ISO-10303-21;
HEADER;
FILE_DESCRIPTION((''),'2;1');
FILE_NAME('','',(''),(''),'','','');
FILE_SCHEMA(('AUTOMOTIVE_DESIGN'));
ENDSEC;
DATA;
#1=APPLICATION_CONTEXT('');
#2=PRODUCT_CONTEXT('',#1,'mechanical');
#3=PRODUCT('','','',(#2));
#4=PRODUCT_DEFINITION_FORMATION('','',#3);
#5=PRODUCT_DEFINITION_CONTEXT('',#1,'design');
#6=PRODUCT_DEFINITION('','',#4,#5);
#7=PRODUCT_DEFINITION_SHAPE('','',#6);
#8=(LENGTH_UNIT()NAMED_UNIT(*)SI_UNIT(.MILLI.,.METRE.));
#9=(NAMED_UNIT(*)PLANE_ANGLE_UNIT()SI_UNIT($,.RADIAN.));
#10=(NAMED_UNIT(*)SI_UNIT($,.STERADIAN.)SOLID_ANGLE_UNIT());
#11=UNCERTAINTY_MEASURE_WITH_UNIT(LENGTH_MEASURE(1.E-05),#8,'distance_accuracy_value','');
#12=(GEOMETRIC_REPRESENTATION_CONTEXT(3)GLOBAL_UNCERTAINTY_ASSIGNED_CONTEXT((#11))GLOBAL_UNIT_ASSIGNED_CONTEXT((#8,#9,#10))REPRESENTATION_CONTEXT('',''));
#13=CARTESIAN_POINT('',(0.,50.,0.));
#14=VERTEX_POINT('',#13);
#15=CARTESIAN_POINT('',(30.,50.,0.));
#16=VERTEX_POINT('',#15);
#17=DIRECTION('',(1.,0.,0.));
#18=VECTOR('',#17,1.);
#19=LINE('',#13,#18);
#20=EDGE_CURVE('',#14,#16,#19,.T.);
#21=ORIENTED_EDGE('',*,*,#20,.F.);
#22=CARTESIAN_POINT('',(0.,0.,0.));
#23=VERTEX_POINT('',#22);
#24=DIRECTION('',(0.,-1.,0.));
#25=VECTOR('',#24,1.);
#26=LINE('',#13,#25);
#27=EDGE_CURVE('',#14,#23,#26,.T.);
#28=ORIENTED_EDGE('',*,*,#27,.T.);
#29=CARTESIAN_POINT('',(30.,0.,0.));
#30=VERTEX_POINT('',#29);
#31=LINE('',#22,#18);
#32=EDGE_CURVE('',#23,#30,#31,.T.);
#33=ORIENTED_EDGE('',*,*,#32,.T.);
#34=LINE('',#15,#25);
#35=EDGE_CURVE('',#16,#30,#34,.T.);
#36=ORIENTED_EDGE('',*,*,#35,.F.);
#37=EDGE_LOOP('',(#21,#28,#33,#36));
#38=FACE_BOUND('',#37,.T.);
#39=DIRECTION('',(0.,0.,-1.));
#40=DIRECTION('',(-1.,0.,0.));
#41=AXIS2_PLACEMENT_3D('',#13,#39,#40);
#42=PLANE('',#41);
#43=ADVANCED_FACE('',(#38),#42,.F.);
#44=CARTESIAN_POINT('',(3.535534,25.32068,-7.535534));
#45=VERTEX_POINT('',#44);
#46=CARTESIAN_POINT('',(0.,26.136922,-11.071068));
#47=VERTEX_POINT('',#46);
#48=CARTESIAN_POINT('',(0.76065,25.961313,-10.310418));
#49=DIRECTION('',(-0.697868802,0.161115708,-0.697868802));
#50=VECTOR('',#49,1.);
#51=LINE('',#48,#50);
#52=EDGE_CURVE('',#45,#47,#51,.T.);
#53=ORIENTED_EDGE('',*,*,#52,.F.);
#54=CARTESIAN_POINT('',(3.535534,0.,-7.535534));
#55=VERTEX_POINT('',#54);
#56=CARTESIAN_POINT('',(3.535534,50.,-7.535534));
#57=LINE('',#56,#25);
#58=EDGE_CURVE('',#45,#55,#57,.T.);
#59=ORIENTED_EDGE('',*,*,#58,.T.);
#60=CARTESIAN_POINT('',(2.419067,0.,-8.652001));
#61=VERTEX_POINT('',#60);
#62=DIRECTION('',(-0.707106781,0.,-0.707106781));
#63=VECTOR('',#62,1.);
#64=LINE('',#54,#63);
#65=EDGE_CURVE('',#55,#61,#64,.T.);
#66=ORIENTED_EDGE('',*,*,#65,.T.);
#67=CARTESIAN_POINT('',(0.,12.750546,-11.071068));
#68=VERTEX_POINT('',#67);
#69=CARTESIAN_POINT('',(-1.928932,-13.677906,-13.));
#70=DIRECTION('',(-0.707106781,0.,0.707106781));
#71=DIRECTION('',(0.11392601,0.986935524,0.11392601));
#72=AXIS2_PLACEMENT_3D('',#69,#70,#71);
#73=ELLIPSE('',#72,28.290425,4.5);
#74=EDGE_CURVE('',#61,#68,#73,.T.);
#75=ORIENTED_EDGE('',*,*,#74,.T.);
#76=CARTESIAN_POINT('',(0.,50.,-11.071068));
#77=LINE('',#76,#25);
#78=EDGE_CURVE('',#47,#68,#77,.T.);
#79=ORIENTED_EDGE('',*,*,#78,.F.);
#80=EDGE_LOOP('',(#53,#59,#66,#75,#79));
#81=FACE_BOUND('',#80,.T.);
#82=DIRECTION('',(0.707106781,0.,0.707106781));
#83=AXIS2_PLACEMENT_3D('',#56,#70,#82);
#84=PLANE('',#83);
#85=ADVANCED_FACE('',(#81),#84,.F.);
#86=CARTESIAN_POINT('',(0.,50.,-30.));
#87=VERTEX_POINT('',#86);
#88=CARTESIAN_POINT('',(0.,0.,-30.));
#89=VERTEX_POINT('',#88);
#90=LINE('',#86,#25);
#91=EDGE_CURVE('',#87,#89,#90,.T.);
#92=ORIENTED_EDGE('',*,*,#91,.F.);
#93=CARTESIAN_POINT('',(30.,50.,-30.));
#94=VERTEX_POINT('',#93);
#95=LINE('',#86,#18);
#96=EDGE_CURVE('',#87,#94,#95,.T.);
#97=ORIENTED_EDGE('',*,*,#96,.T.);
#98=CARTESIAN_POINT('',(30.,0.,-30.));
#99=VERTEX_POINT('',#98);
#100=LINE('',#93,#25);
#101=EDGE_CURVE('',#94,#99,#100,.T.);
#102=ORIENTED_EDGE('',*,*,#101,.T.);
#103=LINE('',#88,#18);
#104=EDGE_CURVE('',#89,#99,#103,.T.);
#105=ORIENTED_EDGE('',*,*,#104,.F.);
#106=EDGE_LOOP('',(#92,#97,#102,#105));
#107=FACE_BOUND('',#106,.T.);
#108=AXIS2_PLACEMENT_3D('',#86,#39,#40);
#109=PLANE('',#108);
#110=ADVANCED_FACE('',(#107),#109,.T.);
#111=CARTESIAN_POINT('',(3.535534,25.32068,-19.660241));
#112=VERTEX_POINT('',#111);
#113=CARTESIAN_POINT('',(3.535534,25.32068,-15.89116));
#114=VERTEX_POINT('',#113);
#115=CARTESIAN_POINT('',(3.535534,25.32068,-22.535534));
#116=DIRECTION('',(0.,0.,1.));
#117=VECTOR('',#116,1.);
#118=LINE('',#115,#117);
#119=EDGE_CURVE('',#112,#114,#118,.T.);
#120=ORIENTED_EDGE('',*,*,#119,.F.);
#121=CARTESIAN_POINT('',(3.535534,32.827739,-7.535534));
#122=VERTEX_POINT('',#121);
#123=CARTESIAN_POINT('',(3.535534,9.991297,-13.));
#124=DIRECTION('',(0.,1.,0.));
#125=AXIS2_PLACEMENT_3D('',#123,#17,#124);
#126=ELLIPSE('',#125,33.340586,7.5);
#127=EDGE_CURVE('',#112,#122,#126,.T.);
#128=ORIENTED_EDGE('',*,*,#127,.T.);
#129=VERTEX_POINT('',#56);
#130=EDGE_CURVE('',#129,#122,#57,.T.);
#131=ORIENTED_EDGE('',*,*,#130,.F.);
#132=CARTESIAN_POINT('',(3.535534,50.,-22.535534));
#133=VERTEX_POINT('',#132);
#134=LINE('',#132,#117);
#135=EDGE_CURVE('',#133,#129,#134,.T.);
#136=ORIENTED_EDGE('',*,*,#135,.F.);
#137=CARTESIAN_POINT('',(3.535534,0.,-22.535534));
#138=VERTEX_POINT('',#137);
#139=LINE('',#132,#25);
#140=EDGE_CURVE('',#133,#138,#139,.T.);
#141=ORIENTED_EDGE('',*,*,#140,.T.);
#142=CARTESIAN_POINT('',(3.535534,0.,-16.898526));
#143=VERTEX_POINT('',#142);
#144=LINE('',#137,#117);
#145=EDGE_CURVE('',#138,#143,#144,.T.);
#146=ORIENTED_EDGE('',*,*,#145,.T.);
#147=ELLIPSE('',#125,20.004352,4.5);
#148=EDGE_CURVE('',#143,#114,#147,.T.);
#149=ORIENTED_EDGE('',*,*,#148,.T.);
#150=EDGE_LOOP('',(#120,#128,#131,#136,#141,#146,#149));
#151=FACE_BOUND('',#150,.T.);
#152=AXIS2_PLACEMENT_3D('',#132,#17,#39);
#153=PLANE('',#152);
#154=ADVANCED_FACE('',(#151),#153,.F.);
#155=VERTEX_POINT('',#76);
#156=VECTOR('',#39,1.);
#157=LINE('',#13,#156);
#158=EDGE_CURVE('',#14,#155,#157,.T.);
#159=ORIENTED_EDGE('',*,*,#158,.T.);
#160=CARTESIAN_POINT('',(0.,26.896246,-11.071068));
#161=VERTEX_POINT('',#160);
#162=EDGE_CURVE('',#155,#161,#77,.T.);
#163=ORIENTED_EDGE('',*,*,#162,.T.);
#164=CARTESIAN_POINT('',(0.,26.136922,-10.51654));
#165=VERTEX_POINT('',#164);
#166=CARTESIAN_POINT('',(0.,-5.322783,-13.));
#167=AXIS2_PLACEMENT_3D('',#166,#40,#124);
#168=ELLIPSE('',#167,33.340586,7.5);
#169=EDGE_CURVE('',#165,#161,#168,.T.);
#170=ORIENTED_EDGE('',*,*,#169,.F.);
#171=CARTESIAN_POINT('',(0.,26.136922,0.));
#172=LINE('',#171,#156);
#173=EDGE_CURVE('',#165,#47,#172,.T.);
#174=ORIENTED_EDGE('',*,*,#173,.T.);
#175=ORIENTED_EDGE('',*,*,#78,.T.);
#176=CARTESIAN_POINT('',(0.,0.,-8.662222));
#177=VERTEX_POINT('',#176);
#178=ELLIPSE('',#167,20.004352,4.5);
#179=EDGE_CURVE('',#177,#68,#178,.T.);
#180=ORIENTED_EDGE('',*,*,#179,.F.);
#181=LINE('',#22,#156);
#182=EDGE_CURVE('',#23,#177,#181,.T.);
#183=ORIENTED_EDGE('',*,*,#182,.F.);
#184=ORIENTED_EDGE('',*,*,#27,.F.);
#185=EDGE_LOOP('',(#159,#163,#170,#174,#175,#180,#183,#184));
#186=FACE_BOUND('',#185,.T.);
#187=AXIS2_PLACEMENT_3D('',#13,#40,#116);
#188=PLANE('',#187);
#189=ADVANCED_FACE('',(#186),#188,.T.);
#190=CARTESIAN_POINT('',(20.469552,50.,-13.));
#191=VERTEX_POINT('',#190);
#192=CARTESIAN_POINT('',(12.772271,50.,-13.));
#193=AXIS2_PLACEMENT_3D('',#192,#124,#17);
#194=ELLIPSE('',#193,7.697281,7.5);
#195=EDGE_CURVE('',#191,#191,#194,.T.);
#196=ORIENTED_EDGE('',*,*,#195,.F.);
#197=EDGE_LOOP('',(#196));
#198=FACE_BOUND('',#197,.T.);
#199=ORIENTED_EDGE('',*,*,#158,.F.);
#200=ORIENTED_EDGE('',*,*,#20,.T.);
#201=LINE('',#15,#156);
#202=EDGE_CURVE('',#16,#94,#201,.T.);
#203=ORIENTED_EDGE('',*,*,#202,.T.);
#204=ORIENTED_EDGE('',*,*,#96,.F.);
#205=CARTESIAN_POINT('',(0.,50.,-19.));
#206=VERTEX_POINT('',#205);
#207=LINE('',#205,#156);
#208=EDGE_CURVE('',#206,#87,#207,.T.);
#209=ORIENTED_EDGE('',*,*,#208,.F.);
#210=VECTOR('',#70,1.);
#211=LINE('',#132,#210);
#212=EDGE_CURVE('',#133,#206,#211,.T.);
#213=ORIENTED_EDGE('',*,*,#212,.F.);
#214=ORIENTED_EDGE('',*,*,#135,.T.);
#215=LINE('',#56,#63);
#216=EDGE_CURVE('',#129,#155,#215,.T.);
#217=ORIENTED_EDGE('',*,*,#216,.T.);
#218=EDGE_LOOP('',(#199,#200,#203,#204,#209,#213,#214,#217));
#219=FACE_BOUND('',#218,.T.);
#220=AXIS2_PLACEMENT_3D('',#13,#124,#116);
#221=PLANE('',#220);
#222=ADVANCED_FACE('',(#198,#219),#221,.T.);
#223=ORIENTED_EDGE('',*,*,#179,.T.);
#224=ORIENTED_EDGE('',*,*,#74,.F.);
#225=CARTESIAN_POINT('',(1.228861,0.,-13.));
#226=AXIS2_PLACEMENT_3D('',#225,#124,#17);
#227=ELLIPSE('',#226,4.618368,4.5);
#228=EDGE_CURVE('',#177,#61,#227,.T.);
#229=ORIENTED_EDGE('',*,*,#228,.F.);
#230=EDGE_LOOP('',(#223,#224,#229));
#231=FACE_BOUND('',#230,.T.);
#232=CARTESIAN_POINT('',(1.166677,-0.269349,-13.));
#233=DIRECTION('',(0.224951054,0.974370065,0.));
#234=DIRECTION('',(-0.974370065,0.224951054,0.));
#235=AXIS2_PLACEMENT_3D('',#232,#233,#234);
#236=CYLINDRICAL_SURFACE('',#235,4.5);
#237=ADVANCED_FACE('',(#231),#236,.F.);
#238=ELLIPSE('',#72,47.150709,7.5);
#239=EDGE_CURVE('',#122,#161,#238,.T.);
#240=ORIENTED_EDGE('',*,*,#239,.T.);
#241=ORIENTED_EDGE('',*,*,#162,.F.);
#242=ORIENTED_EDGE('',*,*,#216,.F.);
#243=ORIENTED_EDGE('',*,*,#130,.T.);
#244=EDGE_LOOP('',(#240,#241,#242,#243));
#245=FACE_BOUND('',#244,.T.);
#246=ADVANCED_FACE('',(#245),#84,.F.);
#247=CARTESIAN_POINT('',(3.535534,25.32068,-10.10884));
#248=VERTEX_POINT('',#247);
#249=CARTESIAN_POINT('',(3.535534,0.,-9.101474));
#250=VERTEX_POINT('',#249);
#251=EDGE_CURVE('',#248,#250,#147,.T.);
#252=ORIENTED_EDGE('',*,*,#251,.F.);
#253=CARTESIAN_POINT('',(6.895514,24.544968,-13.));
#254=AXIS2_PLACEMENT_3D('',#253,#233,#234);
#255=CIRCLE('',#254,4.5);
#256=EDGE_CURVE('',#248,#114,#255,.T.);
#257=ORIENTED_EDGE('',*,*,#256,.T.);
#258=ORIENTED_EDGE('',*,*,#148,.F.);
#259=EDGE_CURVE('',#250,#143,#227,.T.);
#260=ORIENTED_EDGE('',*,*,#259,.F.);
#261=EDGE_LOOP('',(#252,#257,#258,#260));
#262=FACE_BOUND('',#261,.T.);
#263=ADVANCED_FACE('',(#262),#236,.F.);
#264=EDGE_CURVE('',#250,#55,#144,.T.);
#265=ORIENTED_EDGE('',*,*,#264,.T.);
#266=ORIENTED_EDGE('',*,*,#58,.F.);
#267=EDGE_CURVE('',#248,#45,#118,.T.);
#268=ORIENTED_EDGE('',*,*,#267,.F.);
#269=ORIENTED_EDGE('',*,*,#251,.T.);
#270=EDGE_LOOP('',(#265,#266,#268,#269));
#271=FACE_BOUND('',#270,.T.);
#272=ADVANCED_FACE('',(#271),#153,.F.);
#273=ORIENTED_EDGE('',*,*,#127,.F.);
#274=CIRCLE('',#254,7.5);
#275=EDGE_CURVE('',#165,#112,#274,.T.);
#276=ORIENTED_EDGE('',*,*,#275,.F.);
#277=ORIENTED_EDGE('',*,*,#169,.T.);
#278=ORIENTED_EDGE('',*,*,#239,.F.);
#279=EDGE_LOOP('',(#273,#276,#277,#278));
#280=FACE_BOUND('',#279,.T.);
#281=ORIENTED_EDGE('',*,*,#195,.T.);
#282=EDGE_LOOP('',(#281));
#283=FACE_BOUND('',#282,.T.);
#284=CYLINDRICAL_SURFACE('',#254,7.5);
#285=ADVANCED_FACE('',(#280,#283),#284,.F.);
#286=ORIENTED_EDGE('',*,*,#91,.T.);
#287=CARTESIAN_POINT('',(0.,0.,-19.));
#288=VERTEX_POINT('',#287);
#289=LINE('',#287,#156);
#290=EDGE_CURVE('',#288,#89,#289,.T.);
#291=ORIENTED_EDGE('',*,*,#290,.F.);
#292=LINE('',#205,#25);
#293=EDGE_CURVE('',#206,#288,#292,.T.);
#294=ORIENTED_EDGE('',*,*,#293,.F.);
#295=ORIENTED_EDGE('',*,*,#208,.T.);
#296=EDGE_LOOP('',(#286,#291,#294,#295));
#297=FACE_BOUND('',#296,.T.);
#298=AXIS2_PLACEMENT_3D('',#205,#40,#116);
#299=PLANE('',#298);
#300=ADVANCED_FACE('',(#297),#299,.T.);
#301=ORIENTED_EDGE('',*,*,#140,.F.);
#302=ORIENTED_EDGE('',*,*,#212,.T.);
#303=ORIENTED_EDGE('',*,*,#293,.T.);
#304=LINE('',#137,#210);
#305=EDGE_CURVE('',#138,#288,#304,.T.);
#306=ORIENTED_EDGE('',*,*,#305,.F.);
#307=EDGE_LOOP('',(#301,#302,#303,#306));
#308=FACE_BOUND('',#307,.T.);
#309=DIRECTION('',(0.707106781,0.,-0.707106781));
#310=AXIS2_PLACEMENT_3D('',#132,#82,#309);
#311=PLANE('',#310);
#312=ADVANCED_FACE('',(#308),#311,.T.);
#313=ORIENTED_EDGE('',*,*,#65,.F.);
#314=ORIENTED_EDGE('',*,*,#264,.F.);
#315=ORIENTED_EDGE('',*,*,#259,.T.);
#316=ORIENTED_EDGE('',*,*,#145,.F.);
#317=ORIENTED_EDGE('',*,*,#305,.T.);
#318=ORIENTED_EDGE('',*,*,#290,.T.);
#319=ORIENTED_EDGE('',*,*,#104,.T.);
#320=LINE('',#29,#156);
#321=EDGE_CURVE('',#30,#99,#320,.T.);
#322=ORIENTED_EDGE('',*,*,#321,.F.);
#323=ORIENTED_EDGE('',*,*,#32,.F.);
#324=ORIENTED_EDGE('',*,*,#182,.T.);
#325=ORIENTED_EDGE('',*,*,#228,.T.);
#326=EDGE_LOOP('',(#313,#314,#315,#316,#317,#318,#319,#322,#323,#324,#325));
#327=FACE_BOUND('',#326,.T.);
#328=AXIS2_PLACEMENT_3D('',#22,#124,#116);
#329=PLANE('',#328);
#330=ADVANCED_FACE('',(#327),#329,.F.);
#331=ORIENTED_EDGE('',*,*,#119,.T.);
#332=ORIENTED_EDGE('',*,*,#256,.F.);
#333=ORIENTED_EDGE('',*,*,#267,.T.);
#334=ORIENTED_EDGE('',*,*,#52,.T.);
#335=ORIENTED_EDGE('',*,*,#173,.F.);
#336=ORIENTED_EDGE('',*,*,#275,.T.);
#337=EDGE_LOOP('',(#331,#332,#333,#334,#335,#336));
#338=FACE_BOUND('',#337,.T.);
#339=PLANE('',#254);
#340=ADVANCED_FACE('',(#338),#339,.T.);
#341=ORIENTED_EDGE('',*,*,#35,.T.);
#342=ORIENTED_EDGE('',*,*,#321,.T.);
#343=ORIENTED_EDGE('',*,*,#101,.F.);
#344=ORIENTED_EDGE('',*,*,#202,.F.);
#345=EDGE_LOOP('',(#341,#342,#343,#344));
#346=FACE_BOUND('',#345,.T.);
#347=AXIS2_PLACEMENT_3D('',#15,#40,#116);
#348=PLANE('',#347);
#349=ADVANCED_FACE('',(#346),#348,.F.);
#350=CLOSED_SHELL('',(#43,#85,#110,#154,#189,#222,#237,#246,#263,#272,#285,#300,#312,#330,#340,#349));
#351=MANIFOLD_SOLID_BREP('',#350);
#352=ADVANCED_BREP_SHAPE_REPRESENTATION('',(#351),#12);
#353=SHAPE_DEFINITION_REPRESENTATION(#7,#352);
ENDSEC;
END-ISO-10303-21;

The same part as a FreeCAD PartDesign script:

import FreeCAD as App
import Part
import Sketcher

V = App.Vector


def add_polygon(sketch, points):
    """Adds a closed chain of lines whose ends are joined by coincident constraints."""
    first, n = sketch.GeometryCount, len(points)
    for a, b in zip(points, points[1:] + points[:1]):
        sketch.addGeometry(Part.LineSegment(App.Vector(*a, 0), App.Vector(*b, 0)), False)
    for i in range(n):
        sketch.addConstraint(Sketcher.Constraint("Coincident", first + i, 2, first + (i + 1) % n, 1))

doc = App.newDocument("Part")
body = doc.addObject("PartDesign::Body", "Body")

sketch1 = body.newObject("Sketcher::SketchObject", "Sketch")
sketch1.AttachmentSupport = (doc.getObject("XZ_Plane"), [""])
sketch1.MapMode = "FlatFace"
add_polygon(sketch1, [(4, -23), (4, -8), (0, -11), (0, 0), (30, 0), (30, -30), (0, -30), (0, -19)])
sketch1.addConstraint([
    Sketcher.Constraint("Vertical", 0),
    Sketcher.Constraint("Vertical", 2),
    Sketcher.Constraint("Horizontal", 3),
    Sketcher.Constraint("Vertical", 4),
    Sketcher.Constraint("Horizontal", 5),
    Sketcher.Constraint("Vertical", 6),
    Sketcher.Constraint("Coincident", 2, 2, -1, 1),
    Sketcher.Constraint("PointOnObject", 5, 2, -2),
    Sketcher.Constraint("Perpendicular", 1, 7),
    Sketcher.Constraint("Equal", 5, 4),
    Sketcher.Constraint("Equal", 1, 7),
    Sketcher.Constraint("DistanceX", 3, 1, 3, 2, 30.0),
    Sketcher.Constraint("DistanceY", 0, 1, 0, 2, 15.0),
    Sketcher.Constraint("DistanceY", 6, 1, 6, 2, 11.0),
    Sketcher.Constraint("Distance", 1, 5.0),
])
pad1 = body.newObject("PartDesign::Pad", "Pad")
pad1.Profile = sketch1
pad1.Length = 50
pad1.Reversed = True

sketch2 = body.newObject("Sketcher::SketchObject", "Sketch001")
sketch2.Placement = App.Placement(V(12.477368, 54.045418, 0), App.Rotation(V(0, 0, -1), V(-0.974370065, 0.224951054, 0), V(0.224951054, 0.974370065, 0), "ZXY"))
sketch2.addGeometry(Part.Circle(V(13, -1, 0), V(0, 0, 1), 8), False)
sketch2.addConstraint([
    Sketcher.Constraint("Diameter", 0, 15.0),
    Sketcher.Constraint("DistanceX", -1, 1, 0, 3, 13.0),
    Sketcher.Constraint("DistanceY", 0, 3, -1, 1, 1.197366),
])
pocket1 = body.newObject("PartDesign::Pocket", "Pocket")
pocket1.Profile = sketch2
pocket1.Length = 30

sketch3 = body.newObject("Sketcher::SketchObject", "Sketch002")
sketch3.Placement = App.Placement(V(5.728836, 24.814316, 0), App.Rotation(V(0.974370065, -0.224951054, 0), V(0, 0, -1), V(0.224951054, 0.974370065, 0), "ZXY"))
sketch3.addGeometry(Part.Circle(V(1.2, 13, 0), V(0, 0, 1), 4.5), False)
sketch3.addConstraint([
    Sketcher.Constraint("Diameter", 0, 9.0),
    Sketcher.Constraint("DistanceY", -1, 1, 0, 3, 13.0),
    Sketcher.Constraint("DistanceX", -1, 1, 0, 3, 1.197366),
])
pocket2 = body.newObject("PartDesign::Pocket", "Pocket001")
pocket2.Profile = sketch3
pocket2.Type = "ThroughAll"

doc.recompute()
